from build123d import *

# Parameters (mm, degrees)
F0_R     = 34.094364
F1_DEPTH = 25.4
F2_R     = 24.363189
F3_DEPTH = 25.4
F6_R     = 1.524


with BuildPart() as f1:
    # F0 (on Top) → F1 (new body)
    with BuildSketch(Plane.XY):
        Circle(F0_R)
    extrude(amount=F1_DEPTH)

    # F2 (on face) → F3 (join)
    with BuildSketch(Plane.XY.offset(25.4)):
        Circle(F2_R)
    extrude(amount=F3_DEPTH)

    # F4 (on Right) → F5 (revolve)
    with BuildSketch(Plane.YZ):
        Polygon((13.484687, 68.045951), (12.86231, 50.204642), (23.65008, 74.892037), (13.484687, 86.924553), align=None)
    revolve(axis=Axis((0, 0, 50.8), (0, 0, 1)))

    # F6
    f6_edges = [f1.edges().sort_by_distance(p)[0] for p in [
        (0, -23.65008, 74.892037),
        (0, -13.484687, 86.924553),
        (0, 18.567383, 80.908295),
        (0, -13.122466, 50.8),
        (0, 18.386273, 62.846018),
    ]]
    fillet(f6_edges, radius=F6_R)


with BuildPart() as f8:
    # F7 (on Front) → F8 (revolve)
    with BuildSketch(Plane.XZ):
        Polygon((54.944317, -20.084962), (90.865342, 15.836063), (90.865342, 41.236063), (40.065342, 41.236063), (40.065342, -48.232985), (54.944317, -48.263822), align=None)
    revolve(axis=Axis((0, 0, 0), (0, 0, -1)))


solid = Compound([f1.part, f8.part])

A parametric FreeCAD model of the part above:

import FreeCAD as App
import Part
import Sketcher

V = App.Vector
Q = App.Units.Quantity


def edges_at(feature, points):
    """Names of the edges that pass closest to the given points."""
    edges = feature.Shape.Edges
    near = lambda p: min(range(len(edges)), key=lambda i: edges[i].distToShape(Part.Vertex(*p))[0])
    return sorted({f"Edge{near(p) + 1}" for p in points})


def add_polygon(sketch, points):
    """Adds a closed chain of lines whose ends are joined by coincident constraints."""
    first, n = sketch.GeometryCount, len(points)
    for a, b in zip(points, points[1:] + points[:1]):
        sketch.addGeometry(Part.LineSegment(App.Vector(*a, 0), App.Vector(*b, 0)), False)
    for i in range(n):
        sketch.addConstraint(Sketcher.Constraint("Coincident", first + i, 2, first + (i + 1) % n, 1))

doc = App.newDocument("Part")
params = doc.addObject("Spreadsheet::Sheet", "Params")
for row, (alias, value) in enumerate([
    ("pad1_length", "1 in"),
    ("pad2_length", "1 in"),
    ("revolution_angle", "360 deg"),
    ("fillet_radius", "0.06 in"),
    ("sketch4_width", "2 in"),
    ("sketch4_height", "1 in"),
    ("sketch4_length", "2 in"),
    ("revolution2_angle", "360 deg"),
], start=1):
    params.set(f"A{row}", alias)
    params.set(f"B{row}", "=" + value)
    params.setAlias(f"B{row}", alias)

body = doc.addObject("PartDesign::Body", "Body")

sketch1 = body.newObject("Sketcher::SketchObject", "Sketch")
sketch1.AttachmentSupport = (doc.getObject("XY_Plane"), [""])
sketch1.MapMode = "FlatFace"
sketch1.addGeometry(Part.Circle(V(0, 0, 0), V(0, 0, 1), 34), False)
sketch1.addConstraint(Sketcher.Constraint("Coincident", 0, 3, -1, 1))
sketch1.addConstraint(Sketcher.Constraint("Diameter", 0, Q("68.188728 mm")))
pad1 = body.newObject("PartDesign::Pad", "Pad")
pad1.Profile = sketch1
pad1.setExpression("Length", "Params.pad1_length")

sketch2 = body.newObject("Sketcher::SketchObject", "Sketch001")
sketch2.AttachmentSupport = (doc.getObject("XY_Plane"), [""])
sketch2.MapMode = "FlatFace"
sketch2.AttachmentOffset = App.Placement(V(0, 0, 1 * 25.4), App.Rotation())
sketch2.addGeometry(Part.Circle(V(0, 0, 0), V(0, 0, 1), 24), False)
sketch2.addConstraint(Sketcher.Constraint("Coincident", 0, 3, -1, 1))
sketch2.addConstraint(Sketcher.Constraint("Diameter", 0, Q("48.726378 mm")))
pad2 = body.newObject("PartDesign::Pad", "Pad001")
pad2.Profile = sketch2
pad2.setExpression("Length", "Params.pad2_length")

sketch3 = body.newObject("Sketcher::SketchObject", "Sketch002")
sketch3.AttachmentSupport = (doc.getObject("YZ_Plane"), [""])
sketch3.MapMode = "FlatFace"
add_polygon(sketch3, [(13, 68), (13, 50), (24, 75), (13, 87)])
sketch3.addConstraint(Sketcher.Constraint("Vertical", 3))
sketch3.addConstraint(Sketcher.Constraint("Distance", 0, Q("17.852161 mm")))
sketch3.addConstraint(Sketcher.Constraint("Distance", 2, Q("15.751719 mm")))
sketch3.addConstraint(Sketcher.Constraint("DistanceY", 3, 2, 3, 1, Q("18.878602 mm")))
sketch3.addConstraint(Sketcher.Constraint("DistanceX", -1, 1, 0, 2, Q("12.86231 mm")))
sketch3.addConstraint(Sketcher.Constraint("DistanceX", -1, 1, 1, 2, Q("23.65008 mm")))
sketch3.addConstraint(Sketcher.Constraint("DistanceY", -1, 1, 3, 2, Q("68.045951 mm")))
sketch3.addConstraint(Sketcher.Constraint("DistanceY", 0, 2, 2, 2, Q("36.719911 mm")))
revolution = body.newObject("PartDesign::Revolution", "Revolution")
revolution.Profile = sketch3
revolution.ReferenceAxis = (sketch3, ["V_Axis"])
revolution.setExpression("Angle", "Params.revolution_angle")
doc.recompute()

fillet = body.newObject("PartDesign::Fillet", "Fillet")
fillet.Base = (revolution, edges_at(revolution, [
    (0, -23.65, 74.892),
    (0, -13.485, 86.925),
    (0, 18.567, 80.908),
    (0, -13.122, 50.8),
    (0, 18.386, 62.846),
]))
fillet.setExpression("Radius", "Params.fillet_radius")
body2 = doc.addObject("PartDesign::Body", "Body001")

sketch4 = body2.newObject("Sketcher::SketchObject", "Sketch003")
sketch4.AttachmentSupport = (doc.getObject("XZ_Plane001"), [""])
sketch4.MapMode = "FlatFace"
add_polygon(sketch4, [(55, -20), (91, 16), (91, 41), (40, 41), (40, -48), (55, -48)])
sketch4.addConstraint(Sketcher.Constraint("Vertical", 1))
sketch4.addConstraint(Sketcher.Constraint("Horizontal", 2))
sketch4.addConstraint(Sketcher.Constraint("Vertical", 3))
sketch4.addConstraint(Sketcher.Constraint("Vertical", 5))
sketch4.addConstraint(Sketcher.Constraint("DistanceX", 2, 2, 2, 1, Q("2 in")))
sketch4.addConstraint(Sketcher.Constraint("DistanceY", 1, 1, 1, 2, Q("1 in")))
sketch4.addConstraint(Sketcher.Constraint("Distance", 0, Q("2 in")))
sketch4.addConstraint(Sketcher.Constraint("Angle", 0, Q("45 deg")))
sketch4.addConstraint(Sketcher.Constraint("DistanceY", 3, 2, 3, 1, Q("89.469048 mm")))
sketch4.addConstraint(Sketcher.Constraint("DistanceY", 5, 1, 5, 2, Q("28.17886 mm")))
sketch4.addConstraint(Sketcher.Constraint("DistanceX", -1, 1, 0, 2, Q("90.865342 mm")))
sketch4.addConstraint(Sketcher.Constraint("DistanceY", 4, 2, -1, 1, Q("48.263822 mm")))
sketch4.setExpression("Constraints[10]", "Params.sketch4_width")
sketch4.setExpression("Constraints[11]", "Params.sketch4_height")
sketch4.setExpression("Constraints[12]", "Params.sketch4_length")
revolution2 = body2.newObject("PartDesign::Revolution", "Revolution001")
revolution2.Profile = sketch4
revolution2.ReferenceAxis = (sketch4, ["V_Axis"])
revolution2.setExpression("Angle", "Params.revolution2_angle")

doc.recompute()
